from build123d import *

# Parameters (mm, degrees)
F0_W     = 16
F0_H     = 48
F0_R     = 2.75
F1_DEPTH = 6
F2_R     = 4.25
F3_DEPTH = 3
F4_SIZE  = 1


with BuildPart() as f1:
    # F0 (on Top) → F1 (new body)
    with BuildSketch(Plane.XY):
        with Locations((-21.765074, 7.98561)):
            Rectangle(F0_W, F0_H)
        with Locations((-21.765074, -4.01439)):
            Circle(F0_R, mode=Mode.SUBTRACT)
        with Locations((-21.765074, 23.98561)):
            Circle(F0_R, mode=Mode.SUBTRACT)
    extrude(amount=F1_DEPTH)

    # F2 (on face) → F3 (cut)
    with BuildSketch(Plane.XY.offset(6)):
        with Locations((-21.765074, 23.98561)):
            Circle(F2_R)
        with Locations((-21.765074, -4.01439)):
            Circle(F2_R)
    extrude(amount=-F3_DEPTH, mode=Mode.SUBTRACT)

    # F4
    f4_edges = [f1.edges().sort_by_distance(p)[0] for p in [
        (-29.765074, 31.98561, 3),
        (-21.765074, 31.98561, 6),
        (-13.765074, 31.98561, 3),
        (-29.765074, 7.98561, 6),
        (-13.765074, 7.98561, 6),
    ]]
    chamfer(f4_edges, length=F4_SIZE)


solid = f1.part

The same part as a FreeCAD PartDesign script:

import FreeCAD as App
import Part
import Sketcher
from FreeCAD import Vector
Q = App.Units.Quantity


def edges_at(feature, points):
    """Names of the edges that pass closest to the given points."""
    edges = feature.Shape.Edges
    near = lambda p: min(range(len(edges)), key=lambda i: edges[i].distToShape(Part.Vertex(*p))[0])
    return sorted({f"Edge{near(p) + 1}" for p in points})

doc = App.newDocument("Part")
body = doc.addObject("PartDesign::Body", "Body")

# Sketch on XY plane
sketch1 = doc.addObject("Sketcher::SketchObject", "Sketch")
body.addObject(sketch1)
sketch1.AttachmentSupport = (doc.XY_Plane, [""])
sketch1.MapMode = "FlatFace"
sketch1.addGeometry([
    Part.LineSegment(Vector(-29.8, 32, 0), Vector(-29.8, -16, 0)),  # 0
    Part.LineSegment(Vector(-29.8, -16, 0), Vector(-13.8, -16, 0)),  # 1
    Part.LineSegment(Vector(-13.8, -16, 0), Vector(-13.8, 32, 0)),  # 2
    Part.LineSegment(Vector(-13.8, 32, 0), Vector(-29.8, 32, 0)),  # 3
    Part.Circle(Vector(-21.8, -4, 0), Vector(0, 0, 1), 2.8),  # 4
    Part.Circle(Vector(-21.8, 24, 0), Vector(0, 0, 1), 2.8),  # 5
], False)
sketch1.addConstraint([
    Sketcher.Constraint("Coincident", 0, 2, 1, 1),
    Sketcher.Constraint("Coincident", 1, 2, 2, 1),
    Sketcher.Constraint("Coincident", 2, 2, 3, 1),
    Sketcher.Constraint("Coincident", 3, 2, 0, 1),
    Sketcher.Constraint("Vertical", 0),
    Sketcher.Constraint("Horizontal", 1),
    Sketcher.Constraint("Vertical", 2),
    Sketcher.Constraint("Horizontal", 3),
    Sketcher.Constraint("Equal", 4, 5),
    Sketcher.Constraint("Vertical", 4, 3, 5, 3),
    Sketcher.Constraint("Diameter", 4, Q("5.5 mm")),
    Sketcher.Constraint("DistanceX", 1, 1, 1, 2, Q("16 mm")),
    Sketcher.Constraint("DistanceY", 0, 2, 0, 1, Q("48 mm")),
    Sketcher.Constraint("DistanceY", 4, 3, 5, 3, Q("28 mm")),
    Sketcher.Constraint("DistanceX", 0, 2, 4, 3, Q("8 mm")),
    Sketcher.Constraint("DistanceY", 0, 2, 4, 3, Q("12 mm")),
    Sketcher.Constraint("DistanceY", 4, 3, -1, 1, Q("4.01439 mm")),
    Sketcher.Constraint("DistanceX", 4, 3, -1, 1, Q("21.765074 mm")),
])
pad1 = doc.addObject("PartDesign::Pad", "Pad")
body.addObject(pad1)
pad1.Profile = sketch1
pad1.Length = 6

# Sketch on XY plane
sketch2 = doc.addObject("Sketcher::SketchObject", "Sketch001")
body.addObject(sketch2)
sketch2.AttachmentSupport = (doc.XY_Plane, [""])
sketch2.MapMode = "FlatFace"
sketch2.AttachmentOffset = App.Placement(Vector(0, 0, 6), App.Rotation())
sketch2.addGeometry([
    Part.Circle(Vector(-21.8, 24, 0), Vector(0, 0, 1), 4.2),
    Part.Circle(Vector(-21.8, -4, 0), Vector(0, 0, 1), 4.2),
], False)
sketch2.addConstraint([
    Sketcher.Constraint("Equal", 0, 1),
    Sketcher.Constraint("Vertical", 0, 3, 1, 3),
    Sketcher.Constraint("Diameter", 0, Q("8.5 mm")),
    Sketcher.Constraint("DistanceY", 1, 3, 0, 3, Q("28 mm")),
    Sketcher.Constraint("DistanceY", -1, 1, 0, 3, Q("23.98561 mm")),
    Sketcher.Constraint("DistanceX", 0, 3, -1, 1, Q("21.765074 mm")),
])
pocket1 = doc.addObject("PartDesign::Pocket", "Pocket")
body.addObject(pocket1)
pocket1.Profile = sketch2
pocket1.Length = 3
doc.recompute()

chamfer = doc.addObject("PartDesign::Chamfer", "Chamfer")
body.addObject(chamfer)
chamfer.Base = (pocket1, edges_at(pocket1, [
    (-29.765, 31.986, 3),
    (-21.765, 31.986, 6),
    (-13.765, 31.986, 3),
    (-29.765, 7.986, 6),
    (-13.765, 7.986, 6),
]))
chamfer.Size = 1

doc.recompute()
